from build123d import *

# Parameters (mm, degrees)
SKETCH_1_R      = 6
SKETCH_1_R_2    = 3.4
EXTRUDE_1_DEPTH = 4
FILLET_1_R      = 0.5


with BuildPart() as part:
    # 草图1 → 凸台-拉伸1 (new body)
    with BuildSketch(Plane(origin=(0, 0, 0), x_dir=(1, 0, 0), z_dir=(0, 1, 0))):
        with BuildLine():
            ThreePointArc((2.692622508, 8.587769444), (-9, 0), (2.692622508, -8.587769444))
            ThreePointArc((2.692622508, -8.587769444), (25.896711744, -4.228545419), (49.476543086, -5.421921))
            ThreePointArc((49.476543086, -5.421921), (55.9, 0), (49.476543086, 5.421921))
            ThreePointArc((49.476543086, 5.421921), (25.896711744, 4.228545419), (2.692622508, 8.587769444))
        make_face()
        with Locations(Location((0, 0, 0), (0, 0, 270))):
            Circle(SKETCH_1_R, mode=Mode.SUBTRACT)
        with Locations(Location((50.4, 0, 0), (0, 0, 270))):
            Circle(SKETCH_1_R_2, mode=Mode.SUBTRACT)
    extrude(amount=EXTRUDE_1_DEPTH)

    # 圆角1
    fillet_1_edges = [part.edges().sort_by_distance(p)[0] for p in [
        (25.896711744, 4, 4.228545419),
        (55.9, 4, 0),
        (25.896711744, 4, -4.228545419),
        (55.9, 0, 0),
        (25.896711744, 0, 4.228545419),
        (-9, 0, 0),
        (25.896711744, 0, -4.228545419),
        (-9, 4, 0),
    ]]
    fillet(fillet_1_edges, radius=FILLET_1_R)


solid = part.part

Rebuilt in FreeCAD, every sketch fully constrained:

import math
import FreeCAD as App
import Part
import Sketcher

V = App.Vector


def edges_at(feature, points):
    """Names of the edges that pass closest to the given points."""
    edges = feature.Shape.Edges
    near = lambda p: min(range(len(edges)), key=lambda i: edges[i].distToShape(Part.Vertex(*p))[0])
    return sorted({f"Edge{near(p) + 1}" for p in points})

doc = App.newDocument("Part")
body = doc.addObject("PartDesign::Body", "Body")

sketch1 = body.newObject("Sketcher::SketchObject", "Sketch")
sketch1.AttachmentSupport = (doc.getObject("XZ_Plane"), [""])
sketch1.MapMode = "FlatFace"
sketch1.addGeometry(Part.ArcOfCircle(Part.Circle(V(0, 0, 0), V(0, 0, 1), 9), math.radians(73), math.radians(287)), False)
sketch1.addGeometry(Part.ArcOfCircle(Part.Circle(V(32.7, 104.2, 0), V(0, 0, 1), 100.2), math.radians(-107), math.radians(-80)), False)
sketch1.addGeometry(Part.ArcOfCircle(Part.Circle(V(50.4, 0, 0), V(0, 0, 1), 5.5), math.radians(-100), math.radians(100)), False)
sketch1.addGeometry(Part.ArcOfCircle(Part.Circle(V(32.7, -104.2, 0), V(0, 0, 1), 100.2), math.radians(80), math.radians(107)), False)
sketch1.addGeometry(Part.Circle(V(0, 0, 0), V(0, 0, 1), 6), False)
sketch1.addGeometry(Part.Circle(V(50.4, 0, 0), V(0, 0, 1), 3.4), False)
sketch1.addConstraint(Sketcher.Constraint("Tangent", 0, 1, 1, 1))
sketch1.addConstraint(Sketcher.Constraint("Tangent", 1, 2, 2, 2))
sketch1.addConstraint(Sketcher.Constraint("Tangent", 2, 1, 3, 1))
sketch1.addConstraint(Sketcher.Constraint("Tangent", 3, 2, 0, 2))
sketch1.addConstraint(Sketcher.Constraint("Coincident", 0, 3, -1, 1))
sketch1.addConstraint(Sketcher.Constraint("Coincident", 4, 3, -1, 1))
sketch1.addConstraint(Sketcher.Constraint("Coincident", 5, 3, 2, 3))
sketch1.addConstraint(Sketcher.Constraint("Equal", 1, 3))
sketch1.addConstraint(Sketcher.Constraint("PointOnObject", 2, 3, -1))
sketch1.addConstraint(Sketcher.Constraint("Diameter", 4, 12.0))
sketch1.addConstraint(Sketcher.Constraint("Radius", 0, 9.0))
sketch1.addConstraint(Sketcher.Constraint("Diameter", 5, 6.8))
sketch1.addConstraint(Sketcher.Constraint("Radius", 2, 5.5))
sketch1.addConstraint(Sketcher.Constraint("DistanceX", -1, 1, 2, 3, 50.4))
sketch1.addConstraint(Sketcher.Constraint("Radius", 1, 100.162214))
pad1 = body.newObject("PartDesign::Pad", "Pad")
pad1.Profile = sketch1
pad1.Length = 4
pad1.Reversed = True
doc.recompute()

fillet = body.newObject("PartDesign::Fillet", "Fillet")
fillet.Base = (pad1, edges_at(pad1, [
    (25.897, 4, 4.229),
    (55.9, 4, 0),
    (25.897, 4, -4.229),
    (55.9, 0, 0),
    (25.897, 0, 4.229),
    (-9, 0, 0),
    (25.897, 0, -4.229),
    (-9, 4, 0),
]))
fillet.Radius = 0.5

doc.recompute()
